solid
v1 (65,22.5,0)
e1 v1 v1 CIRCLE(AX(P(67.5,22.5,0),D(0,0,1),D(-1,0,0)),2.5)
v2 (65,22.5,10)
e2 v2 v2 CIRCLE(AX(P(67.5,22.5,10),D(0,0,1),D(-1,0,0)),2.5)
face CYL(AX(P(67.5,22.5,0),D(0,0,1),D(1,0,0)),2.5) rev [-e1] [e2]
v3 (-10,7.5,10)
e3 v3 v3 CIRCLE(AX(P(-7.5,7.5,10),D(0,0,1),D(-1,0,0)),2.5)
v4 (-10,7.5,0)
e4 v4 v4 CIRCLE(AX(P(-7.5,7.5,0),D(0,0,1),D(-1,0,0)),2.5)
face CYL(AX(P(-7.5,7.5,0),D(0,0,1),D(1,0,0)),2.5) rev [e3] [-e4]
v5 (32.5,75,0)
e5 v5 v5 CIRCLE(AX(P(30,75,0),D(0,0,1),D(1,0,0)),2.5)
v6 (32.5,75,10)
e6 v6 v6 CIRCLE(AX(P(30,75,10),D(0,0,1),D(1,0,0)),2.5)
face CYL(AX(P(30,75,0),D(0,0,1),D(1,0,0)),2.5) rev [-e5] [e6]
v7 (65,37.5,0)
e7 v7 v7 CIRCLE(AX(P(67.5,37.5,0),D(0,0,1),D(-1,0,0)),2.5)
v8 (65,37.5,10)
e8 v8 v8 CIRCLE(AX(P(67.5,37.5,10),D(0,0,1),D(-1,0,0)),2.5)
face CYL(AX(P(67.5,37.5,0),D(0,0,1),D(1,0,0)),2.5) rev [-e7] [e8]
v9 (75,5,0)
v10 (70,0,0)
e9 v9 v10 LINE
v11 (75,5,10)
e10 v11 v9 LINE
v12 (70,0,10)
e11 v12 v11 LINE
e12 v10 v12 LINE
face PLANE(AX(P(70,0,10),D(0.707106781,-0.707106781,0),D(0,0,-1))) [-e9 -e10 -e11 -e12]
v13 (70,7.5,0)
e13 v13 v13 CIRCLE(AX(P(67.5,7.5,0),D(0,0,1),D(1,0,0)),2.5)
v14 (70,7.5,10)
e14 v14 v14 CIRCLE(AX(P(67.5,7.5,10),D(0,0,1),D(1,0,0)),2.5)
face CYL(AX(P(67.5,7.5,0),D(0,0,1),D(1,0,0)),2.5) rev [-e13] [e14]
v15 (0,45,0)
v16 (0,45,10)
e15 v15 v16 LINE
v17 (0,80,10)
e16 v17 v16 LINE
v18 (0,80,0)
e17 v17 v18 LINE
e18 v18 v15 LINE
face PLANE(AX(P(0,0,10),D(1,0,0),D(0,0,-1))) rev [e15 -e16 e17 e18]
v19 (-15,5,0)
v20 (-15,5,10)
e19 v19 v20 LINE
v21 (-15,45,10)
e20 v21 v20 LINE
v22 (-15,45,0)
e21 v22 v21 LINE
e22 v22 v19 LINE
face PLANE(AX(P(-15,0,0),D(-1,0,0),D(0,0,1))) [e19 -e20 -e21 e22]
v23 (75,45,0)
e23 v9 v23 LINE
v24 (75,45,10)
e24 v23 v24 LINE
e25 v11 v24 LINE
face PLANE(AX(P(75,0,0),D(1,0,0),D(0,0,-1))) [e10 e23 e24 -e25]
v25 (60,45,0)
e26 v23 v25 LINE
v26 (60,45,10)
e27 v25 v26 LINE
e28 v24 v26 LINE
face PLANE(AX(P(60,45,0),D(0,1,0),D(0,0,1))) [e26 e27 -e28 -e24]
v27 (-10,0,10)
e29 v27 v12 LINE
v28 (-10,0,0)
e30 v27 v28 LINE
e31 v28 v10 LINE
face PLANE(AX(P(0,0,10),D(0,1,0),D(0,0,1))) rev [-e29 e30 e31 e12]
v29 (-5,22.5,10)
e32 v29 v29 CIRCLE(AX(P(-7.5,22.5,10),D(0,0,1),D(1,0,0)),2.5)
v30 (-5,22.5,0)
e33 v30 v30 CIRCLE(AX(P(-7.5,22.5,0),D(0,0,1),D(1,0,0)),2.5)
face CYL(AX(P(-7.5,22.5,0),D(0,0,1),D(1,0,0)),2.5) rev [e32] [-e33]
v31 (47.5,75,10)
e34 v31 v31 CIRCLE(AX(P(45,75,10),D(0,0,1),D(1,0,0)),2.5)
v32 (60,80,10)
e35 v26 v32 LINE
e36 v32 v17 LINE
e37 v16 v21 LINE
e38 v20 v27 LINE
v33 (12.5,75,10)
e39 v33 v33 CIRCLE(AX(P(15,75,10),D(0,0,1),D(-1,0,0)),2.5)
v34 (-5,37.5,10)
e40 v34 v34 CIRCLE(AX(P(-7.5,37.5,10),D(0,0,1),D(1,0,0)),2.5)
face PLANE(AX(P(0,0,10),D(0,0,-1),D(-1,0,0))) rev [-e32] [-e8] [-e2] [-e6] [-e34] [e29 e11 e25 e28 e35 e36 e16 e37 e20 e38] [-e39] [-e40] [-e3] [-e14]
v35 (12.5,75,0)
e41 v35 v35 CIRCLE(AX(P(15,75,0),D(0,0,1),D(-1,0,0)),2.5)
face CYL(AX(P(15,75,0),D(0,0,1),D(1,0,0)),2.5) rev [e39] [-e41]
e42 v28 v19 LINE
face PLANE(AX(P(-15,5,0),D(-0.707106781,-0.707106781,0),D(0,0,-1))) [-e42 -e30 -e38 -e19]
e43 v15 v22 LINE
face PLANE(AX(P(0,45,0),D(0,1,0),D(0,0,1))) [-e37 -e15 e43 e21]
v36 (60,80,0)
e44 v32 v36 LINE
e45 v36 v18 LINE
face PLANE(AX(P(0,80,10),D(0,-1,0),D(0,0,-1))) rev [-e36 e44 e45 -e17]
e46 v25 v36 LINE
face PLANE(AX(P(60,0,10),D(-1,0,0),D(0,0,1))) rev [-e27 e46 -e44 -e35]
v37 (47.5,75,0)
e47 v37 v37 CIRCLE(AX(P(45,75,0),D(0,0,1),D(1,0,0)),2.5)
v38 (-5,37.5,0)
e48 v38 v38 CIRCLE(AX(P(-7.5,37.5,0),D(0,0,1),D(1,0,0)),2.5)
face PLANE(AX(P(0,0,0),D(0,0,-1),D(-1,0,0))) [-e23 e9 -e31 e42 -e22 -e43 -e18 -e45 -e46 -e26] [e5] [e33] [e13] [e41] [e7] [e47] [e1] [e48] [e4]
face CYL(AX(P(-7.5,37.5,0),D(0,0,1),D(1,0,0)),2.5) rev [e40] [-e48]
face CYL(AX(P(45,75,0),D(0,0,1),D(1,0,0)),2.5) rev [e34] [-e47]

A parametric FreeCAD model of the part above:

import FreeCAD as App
import Part
import Sketcher
from FreeCAD import Vector


def edges_at(feature, points):
    """Names of the edges that pass closest to the given points."""
    edges = feature.Shape.Edges
    near = lambda p: min(range(len(edges)), key=lambda i: edges[i].distToShape(Part.Vertex(*p))[0])
    return sorted({f"Edge{near(p) + 1}" for p in points})


def add_polygon(sketch, points):
    """Adds a closed chain of lines whose ends are joined by coincident constraints."""
    first, n = sketch.GeometryCount, len(points)
    for a, b in zip(points, points[1:] + points[:1]):
        sketch.addGeometry(Part.LineSegment(App.Vector(*a, 0), App.Vector(*b, 0)), False)
    for i in range(n):
        sketch.addConstraint(Sketcher.Constraint("Coincident", first + i, 2, first + (i + 1) % n, 1))

doc = App.newDocument("Part")
body = doc.addObject("PartDesign::Body", "Body")

# Sketch on XY plane
sketch1 = body.newObject("Sketcher::SketchObject", "Sketch")
sketch1.AttachmentSupport = (doc.getObject("XY_Plane"), [""])
sketch1.MapMode = "FlatFace"
add_polygon(sketch1, [(0, 80), (0, 0), (60, 0), (60, 80)])  # lines 0-3
sketch1.addConstraint([
    Sketcher.Constraint("Vertical", 0),
    Sketcher.Constraint("Horizontal", 1),
    Sketcher.Constraint("Vertical", 2),
    Sketcher.Constraint("Horizontal", 3),
    Sketcher.Constraint("Coincident", 0, 2, -1, 1),
    Sketcher.Constraint("DistanceX", 1, 1, 1, 2, 60.0),
    Sketcher.Constraint("DistanceY", 0, 2, 0, 1, 80.0),
])
pad1 = body.newObject("PartDesign::Pad", "Pad")
pad1.Profile = sketch1
pad1.Length = 10

# Sketch on XY plane
sketch2 = body.newObject("Sketcher::SketchObject", "Sketch001")
sketch2.AttachmentSupport = (doc.getObject("XY_Plane"), [""])
sketch2.MapMode = "FlatFace"
sketch2.AttachmentOffset = App.Placement(Vector(0, 0, 10), App.Rotation())
add_polygon(sketch2, [(-15, 45), (-15, 0), (0, 0), (0, 45)])  # lines 0-3
add_polygon(sketch2, [(60, 45), (60, 0), (75, 0), (75, 45)])  # lines 4-7
sketch2.addConstraint([
    Sketcher.Constraint("Vertical", 0),
    Sketcher.Constraint("Horizontal", 1),
    Sketcher.Constraint("Vertical", 2),
    Sketcher.Constraint("Horizontal", 3),
    Sketcher.Constraint("Vertical", 4),
    Sketcher.Constraint("Horizontal", 5),
    Sketcher.Constraint("Vertical", 6),
    Sketcher.Constraint("Horizontal", 7),
    Sketcher.Constraint("Coincident", 1, 2, -1, 1),
    Sketcher.Constraint("PointOnObject", 4, 2, -1),
    Sketcher.Constraint("Horizontal", 3, 2, 6, 2),
    Sketcher.Constraint("Equal", 3, 5),
    Sketcher.Constraint("DistanceX", 1, 1, 1, 2, 15.0),
    Sketcher.Constraint("DistanceY", 0, 2, 0, 1, 45.0),
    Sketcher.Constraint("DistanceX", -1, 1, 4, 2, 60.0),
])
pad2 = body.newObject("PartDesign::Pad", "Pad001")
pad2.Profile = sketch2
pad2.Length = 10
pad2.Reversed = True

# Sketch on XY plane
sketch3 = body.newObject("Sketcher::SketchObject", "Sketch002")
sketch3.AttachmentSupport = (doc.getObject("XY_Plane"), [""])
sketch3.MapMode = "FlatFace"
sketch3.AttachmentOffset = App.Placement(Vector(0, 0, 10), App.Rotation())
sketch3.addGeometry([
    Part.Circle(Vector(45, 75, 0), Vector(0, 0, 1), 2.5),  # 0
    Part.Circle(Vector(30, 75, 0), Vector(0, 0, 1), 2.5),  # 1
    Part.Circle(Vector(15, 75, 0), Vector(0, 0, 1), 2.5),  # 2
    Part.Circle(Vector(-7.5, 22.5, 0), Vector(0, 0, 1), 2.5),  # 3
    Part.Circle(Vector(-7.5, 37.5, 0), Vector(0, 0, 1), 2.5),  # 4
    Part.Circle(Vector(-7.5, 7.5, 0), Vector(0, 0, 1), 2.5),  # 5
    Part.Circle(Vector(67.5, 7.5, 0), Vector(0, 0, 1), 2.5),  # 6
    Part.Circle(Vector(67.5, 37.5, 0), Vector(0, 0, 1), 2.5),  # 7
    Part.Circle(Vector(67.5, 22.5, 0), Vector(0, 0, 1), 2.5),  # 8
], False)
sketch3.addConstraint([
    Sketcher.Constraint("Equal", 0, 1),
    Sketcher.Constraint("Equal", 1, 2),
    Sketcher.Constraint("Equal", 2, 3),
    Sketcher.Constraint("Equal", 3, 4),
    Sketcher.Constraint("Equal", 4, 5),
    Sketcher.Constraint("Equal", 5, 6),
    Sketcher.Constraint("Equal", 6, 7),
    Sketcher.Constraint("Equal", 7, 8),
    Sketcher.Constraint("Horizontal", 0, 3, 1, 3),
    Sketcher.Constraint("Horizontal", 1, 3, 2, 3),
    Sketcher.Constraint("Horizontal", 5, 3, 6, 3),
    Sketcher.Constraint("Horizontal", 4, 3, 7, 3),
    Sketcher.Constraint("Horizontal", 3, 3, 8, 3),
    Sketcher.Constraint("Vertical", 3, 3, 4, 3),
    Sketcher.Constraint("Vertical", 4, 3, 5, 3),
    Sketcher.Constraint("Vertical", 6, 3, 7, 3),
    Sketcher.Constraint("Vertical", 7, 3, 8, 3),
    Sketcher.Constraint("Diameter", 0, 5.0),
    Sketcher.Constraint("DistanceX", -1, 1, 0, 3, 45.0),
    Sketcher.Constraint("DistanceY", -1, 1, 0, 3, 75.0),
    Sketcher.Constraint("DistanceX", -1, 1, 1, 3, 30.0),
    Sketcher.Constraint("DistanceX", -1, 1, 2, 3, 15.0),
    Sketcher.Constraint("DistanceY", 3, 3, 4, 3, 15.0),
    Sketcher.Constraint("DistanceY", 5, 3, 3, 3, 15.0),
    Sketcher.Constraint("DistanceX", 5, 3, 6, 3, 75.0),
    Sketcher.Constraint("DistanceX", 3, 3, -1, 1, 7.5),
    Sketcher.Constraint("DistanceY", -1, 1, 3, 3, 22.5),
])
pocket1 = body.newObject("PartDesign::Pocket", "Pocket")
pocket1.Profile = sketch3
pocket1.Length = 10
doc.recompute()

chamfer = body.newObject("PartDesign::Chamfer", "Chamfer")
chamfer.Base = (pocket1, edges_at(pocket1, [(-15, 0, 5), (75, 0, 5)]))
chamfer.Size = 5

doc.recompute()
